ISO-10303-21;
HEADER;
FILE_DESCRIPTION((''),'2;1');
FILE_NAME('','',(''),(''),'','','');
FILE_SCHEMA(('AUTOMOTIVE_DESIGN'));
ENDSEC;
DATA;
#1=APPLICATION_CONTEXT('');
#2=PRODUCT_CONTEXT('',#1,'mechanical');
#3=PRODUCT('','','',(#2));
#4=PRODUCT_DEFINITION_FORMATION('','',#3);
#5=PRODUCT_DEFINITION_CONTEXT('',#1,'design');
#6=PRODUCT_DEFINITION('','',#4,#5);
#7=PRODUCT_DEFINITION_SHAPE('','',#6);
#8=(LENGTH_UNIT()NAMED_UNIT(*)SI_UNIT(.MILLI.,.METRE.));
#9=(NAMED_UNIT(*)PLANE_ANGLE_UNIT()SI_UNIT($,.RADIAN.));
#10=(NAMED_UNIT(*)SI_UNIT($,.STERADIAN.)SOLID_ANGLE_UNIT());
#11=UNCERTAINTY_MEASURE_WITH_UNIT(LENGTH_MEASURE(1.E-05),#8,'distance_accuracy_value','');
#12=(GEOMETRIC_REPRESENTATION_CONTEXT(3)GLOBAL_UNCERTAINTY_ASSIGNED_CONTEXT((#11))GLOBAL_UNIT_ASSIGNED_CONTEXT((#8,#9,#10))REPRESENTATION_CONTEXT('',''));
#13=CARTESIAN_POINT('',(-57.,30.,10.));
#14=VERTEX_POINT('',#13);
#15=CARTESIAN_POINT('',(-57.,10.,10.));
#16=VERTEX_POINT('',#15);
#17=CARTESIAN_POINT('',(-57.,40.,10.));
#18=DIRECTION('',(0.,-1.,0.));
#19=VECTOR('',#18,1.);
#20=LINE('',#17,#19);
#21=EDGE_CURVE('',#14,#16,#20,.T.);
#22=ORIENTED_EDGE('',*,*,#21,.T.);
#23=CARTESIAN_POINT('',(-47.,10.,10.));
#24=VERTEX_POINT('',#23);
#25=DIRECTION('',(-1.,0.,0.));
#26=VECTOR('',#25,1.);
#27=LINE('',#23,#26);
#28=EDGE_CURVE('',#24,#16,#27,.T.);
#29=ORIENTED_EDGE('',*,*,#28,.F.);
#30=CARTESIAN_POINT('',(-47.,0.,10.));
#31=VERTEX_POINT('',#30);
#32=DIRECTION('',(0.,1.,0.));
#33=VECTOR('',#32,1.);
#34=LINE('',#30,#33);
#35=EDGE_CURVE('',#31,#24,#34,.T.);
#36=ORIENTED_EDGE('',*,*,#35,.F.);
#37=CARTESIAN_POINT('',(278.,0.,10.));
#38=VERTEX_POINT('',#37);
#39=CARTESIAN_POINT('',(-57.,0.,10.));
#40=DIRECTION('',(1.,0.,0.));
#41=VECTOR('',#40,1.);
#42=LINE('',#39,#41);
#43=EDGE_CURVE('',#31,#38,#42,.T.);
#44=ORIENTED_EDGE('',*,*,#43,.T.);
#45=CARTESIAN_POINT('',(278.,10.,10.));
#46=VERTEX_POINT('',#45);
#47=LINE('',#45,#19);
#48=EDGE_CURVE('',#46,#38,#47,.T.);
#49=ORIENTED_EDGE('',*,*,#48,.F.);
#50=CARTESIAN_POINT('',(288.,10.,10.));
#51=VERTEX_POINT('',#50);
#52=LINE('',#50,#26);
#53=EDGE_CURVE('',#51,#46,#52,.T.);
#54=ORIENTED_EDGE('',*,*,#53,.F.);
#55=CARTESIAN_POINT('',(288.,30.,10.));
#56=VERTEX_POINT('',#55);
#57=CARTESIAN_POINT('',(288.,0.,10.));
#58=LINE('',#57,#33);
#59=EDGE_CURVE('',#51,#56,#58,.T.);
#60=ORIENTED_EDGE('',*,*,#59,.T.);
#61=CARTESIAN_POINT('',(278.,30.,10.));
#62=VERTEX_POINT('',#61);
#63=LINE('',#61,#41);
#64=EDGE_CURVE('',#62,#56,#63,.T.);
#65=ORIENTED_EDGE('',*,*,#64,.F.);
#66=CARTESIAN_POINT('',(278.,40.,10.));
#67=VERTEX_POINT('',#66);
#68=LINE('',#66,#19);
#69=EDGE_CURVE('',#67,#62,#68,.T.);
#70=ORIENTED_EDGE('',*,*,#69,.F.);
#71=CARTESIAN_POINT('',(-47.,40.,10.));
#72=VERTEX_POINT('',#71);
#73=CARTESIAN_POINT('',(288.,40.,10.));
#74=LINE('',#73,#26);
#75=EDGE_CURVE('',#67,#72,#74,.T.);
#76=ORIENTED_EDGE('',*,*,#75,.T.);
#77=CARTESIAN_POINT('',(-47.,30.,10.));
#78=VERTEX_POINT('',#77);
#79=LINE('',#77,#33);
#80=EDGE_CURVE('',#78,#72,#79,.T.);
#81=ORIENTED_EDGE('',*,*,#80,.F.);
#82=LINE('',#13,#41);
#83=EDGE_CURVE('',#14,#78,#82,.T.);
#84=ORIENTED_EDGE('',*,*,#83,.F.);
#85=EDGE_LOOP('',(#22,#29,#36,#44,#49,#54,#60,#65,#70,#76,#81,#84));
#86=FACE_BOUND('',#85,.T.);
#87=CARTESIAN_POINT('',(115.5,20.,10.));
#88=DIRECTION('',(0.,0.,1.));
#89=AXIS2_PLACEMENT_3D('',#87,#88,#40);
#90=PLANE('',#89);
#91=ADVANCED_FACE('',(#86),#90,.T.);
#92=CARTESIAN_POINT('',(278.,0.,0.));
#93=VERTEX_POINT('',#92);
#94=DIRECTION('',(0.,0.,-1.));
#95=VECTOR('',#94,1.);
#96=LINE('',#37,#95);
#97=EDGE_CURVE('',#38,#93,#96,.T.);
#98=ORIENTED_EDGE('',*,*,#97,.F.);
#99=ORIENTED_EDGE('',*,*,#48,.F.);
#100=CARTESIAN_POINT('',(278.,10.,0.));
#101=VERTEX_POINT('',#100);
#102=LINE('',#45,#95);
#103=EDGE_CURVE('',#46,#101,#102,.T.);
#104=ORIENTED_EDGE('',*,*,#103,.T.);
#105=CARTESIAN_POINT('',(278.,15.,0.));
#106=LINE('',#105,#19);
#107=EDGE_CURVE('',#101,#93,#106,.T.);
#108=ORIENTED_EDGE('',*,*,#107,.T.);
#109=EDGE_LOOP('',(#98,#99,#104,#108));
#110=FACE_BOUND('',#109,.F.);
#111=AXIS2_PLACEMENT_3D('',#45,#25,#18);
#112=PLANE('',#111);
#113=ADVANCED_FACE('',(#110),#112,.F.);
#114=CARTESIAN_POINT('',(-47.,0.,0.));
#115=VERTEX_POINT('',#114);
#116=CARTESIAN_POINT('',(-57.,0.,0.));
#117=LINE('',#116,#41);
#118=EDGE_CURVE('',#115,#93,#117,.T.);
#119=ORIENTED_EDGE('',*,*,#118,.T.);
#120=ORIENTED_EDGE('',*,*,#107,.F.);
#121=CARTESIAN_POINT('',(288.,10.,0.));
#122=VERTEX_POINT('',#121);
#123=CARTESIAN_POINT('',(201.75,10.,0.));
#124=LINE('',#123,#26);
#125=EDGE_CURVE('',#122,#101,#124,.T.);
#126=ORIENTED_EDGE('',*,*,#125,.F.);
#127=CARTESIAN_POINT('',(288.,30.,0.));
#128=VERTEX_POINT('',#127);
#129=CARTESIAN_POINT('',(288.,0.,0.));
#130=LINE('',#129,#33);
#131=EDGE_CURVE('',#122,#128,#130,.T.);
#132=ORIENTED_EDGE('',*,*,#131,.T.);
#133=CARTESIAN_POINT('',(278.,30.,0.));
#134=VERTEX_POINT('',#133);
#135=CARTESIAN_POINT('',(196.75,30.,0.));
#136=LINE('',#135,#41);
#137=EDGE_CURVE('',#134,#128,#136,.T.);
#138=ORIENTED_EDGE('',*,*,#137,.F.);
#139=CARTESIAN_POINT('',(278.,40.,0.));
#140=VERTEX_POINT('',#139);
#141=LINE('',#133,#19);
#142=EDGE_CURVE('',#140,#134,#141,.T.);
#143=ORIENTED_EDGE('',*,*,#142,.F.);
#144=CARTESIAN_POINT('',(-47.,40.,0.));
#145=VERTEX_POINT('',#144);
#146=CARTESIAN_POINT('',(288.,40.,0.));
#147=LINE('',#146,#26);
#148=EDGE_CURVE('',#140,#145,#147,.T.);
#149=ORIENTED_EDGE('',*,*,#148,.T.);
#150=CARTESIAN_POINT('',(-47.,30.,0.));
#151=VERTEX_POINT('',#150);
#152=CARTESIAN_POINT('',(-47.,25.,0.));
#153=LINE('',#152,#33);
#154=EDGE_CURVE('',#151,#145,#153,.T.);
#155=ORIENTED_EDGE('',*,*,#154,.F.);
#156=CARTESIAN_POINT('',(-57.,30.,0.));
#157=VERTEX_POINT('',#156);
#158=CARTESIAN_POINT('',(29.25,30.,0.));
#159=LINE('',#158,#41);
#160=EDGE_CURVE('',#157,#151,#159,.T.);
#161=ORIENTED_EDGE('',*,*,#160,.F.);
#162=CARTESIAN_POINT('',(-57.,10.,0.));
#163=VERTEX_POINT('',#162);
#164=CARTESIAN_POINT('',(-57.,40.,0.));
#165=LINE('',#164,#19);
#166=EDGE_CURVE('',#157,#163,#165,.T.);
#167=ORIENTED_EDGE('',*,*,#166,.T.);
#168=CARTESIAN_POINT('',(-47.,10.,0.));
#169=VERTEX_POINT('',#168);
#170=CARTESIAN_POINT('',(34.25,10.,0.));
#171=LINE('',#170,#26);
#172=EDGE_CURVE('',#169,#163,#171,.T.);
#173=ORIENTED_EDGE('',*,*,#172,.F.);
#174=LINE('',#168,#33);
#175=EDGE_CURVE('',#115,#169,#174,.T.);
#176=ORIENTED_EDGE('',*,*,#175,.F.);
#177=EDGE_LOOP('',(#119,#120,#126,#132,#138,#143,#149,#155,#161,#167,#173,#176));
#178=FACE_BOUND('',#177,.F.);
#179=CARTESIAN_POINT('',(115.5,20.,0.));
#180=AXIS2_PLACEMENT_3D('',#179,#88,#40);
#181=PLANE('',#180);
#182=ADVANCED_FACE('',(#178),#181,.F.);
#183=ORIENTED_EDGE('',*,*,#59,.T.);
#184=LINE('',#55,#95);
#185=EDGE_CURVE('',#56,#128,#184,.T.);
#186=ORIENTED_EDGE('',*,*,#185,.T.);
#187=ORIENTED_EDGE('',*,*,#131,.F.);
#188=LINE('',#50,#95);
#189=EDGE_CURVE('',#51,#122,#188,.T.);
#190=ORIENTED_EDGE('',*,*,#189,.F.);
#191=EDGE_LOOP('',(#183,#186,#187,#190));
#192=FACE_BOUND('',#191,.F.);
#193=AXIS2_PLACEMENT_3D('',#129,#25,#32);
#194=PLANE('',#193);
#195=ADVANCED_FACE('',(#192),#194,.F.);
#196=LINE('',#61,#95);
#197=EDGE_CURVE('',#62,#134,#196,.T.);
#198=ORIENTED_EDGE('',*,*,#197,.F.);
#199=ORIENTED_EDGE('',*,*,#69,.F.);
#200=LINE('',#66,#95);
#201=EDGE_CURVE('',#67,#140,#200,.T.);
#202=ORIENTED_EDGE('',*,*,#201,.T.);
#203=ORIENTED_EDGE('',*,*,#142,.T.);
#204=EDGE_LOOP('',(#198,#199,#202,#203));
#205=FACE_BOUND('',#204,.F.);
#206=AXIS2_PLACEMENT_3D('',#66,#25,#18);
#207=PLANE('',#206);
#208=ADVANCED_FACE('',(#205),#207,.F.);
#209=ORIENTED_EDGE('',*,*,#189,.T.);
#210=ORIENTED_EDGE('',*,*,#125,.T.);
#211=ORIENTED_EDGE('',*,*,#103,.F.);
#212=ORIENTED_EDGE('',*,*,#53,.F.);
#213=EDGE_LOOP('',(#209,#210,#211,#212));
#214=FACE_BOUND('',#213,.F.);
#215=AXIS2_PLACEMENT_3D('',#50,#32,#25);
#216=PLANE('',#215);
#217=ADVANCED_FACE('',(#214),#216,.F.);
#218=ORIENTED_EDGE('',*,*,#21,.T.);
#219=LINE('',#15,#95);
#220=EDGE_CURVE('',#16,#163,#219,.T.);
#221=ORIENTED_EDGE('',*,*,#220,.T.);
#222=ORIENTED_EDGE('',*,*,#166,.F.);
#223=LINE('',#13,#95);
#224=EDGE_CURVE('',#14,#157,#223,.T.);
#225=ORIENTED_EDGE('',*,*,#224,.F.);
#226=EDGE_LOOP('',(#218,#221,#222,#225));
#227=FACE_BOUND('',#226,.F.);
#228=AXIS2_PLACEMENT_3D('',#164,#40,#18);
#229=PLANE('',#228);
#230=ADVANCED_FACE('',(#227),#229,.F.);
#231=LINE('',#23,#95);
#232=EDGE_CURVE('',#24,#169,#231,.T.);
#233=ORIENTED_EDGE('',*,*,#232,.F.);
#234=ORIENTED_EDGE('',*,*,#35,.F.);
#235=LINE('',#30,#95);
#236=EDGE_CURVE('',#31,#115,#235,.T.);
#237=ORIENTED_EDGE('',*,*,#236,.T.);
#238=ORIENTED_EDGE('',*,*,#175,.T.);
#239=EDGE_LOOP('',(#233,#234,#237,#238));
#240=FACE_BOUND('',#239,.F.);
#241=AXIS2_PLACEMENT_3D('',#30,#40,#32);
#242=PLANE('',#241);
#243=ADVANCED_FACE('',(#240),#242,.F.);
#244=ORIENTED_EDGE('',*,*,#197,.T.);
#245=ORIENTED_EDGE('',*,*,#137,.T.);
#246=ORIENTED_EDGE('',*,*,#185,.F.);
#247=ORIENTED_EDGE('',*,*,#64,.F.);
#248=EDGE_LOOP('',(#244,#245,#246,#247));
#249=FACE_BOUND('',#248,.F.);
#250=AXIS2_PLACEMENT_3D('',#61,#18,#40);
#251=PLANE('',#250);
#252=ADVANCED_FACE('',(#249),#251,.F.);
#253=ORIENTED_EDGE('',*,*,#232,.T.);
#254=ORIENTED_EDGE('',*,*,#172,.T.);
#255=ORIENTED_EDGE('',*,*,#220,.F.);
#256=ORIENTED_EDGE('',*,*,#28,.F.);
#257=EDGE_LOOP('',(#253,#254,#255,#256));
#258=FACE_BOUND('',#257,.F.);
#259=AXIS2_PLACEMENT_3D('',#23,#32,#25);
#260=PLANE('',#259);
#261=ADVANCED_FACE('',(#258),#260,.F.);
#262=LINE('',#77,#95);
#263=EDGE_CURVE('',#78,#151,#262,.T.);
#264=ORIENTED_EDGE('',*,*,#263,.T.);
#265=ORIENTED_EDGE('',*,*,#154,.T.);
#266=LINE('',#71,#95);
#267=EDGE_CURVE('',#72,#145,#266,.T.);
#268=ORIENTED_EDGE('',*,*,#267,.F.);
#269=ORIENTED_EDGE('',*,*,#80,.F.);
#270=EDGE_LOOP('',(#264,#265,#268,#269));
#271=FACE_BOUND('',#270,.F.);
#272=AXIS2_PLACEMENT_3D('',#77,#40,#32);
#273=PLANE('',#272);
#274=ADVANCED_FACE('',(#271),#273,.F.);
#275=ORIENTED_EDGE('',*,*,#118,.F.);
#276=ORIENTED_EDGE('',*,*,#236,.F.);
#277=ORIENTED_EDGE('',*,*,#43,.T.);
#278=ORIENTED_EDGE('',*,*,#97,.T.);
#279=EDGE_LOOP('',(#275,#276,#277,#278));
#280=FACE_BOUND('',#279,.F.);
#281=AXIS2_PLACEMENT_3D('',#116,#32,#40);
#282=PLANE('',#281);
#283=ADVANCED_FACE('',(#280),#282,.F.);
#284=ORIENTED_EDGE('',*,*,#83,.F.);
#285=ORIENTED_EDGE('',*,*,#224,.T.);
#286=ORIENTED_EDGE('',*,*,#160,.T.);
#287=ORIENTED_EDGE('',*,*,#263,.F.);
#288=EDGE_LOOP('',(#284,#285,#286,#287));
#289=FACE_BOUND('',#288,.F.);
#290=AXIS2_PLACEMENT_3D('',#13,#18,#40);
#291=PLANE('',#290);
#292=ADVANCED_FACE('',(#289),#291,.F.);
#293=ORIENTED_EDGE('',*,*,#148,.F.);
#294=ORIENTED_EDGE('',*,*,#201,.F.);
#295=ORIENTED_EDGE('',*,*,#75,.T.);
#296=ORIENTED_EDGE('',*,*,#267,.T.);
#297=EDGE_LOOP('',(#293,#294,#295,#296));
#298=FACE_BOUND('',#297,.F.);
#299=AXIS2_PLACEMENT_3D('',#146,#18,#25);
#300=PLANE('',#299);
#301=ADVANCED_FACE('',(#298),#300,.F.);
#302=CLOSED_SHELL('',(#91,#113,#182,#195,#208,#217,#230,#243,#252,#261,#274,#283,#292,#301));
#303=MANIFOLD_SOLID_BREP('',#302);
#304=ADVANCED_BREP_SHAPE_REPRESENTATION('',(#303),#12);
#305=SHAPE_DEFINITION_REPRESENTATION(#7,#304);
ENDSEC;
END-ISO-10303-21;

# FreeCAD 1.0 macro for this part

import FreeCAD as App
import Part
import Sketcher

V = App.Vector
Q = App.Units.Quantity

doc = App.newDocument("Part")
body = doc.addObject("PartDesign::Body", "Body")

# Sketch on XY plane
sketch1 = doc.addObject("Sketcher::SketchObject", "Sketch")
body.addObject(sketch1)
sketch1.AttachmentSupport = (doc.XY_Plane, [""])
sketch1.MapMode = "FlatFace"
sketch1.addGeometry(Part.LineSegment(V(-57, 40, 0), V(-57, 0, 0)), False)
sketch1.addGeometry(Part.LineSegment(V(-57, 0, 0), V(288, 0, 0)), False)
sketch1.addGeometry(Part.LineSegment(V(288, 0, 0), V(288, 40, 0)), False)
sketch1.addGeometry(Part.LineSegment(V(288, 40, 0), V(-57, 40, 0)), False)
sketch1.addConstraint(Sketcher.Constraint("Coincident", 0, 2, 1, 1))
sketch1.addConstraint(Sketcher.Constraint("Coincident", 1, 2, 2, 1))
sketch1.addConstraint(Sketcher.Constraint("Coincident", 2, 2, 3, 1))
sketch1.addConstraint(Sketcher.Constraint("Coincident", 3, 2, 0, 1))
sketch1.addConstraint(Sketcher.Constraint("Vertical", 0))
sketch1.addConstraint(Sketcher.Constraint("Horizontal", 1))
sketch1.addConstraint(Sketcher.Constraint("Vertical", 2))
sketch1.addConstraint(Sketcher.Constraint("Horizontal", 3))
sketch1.addConstraint(Sketcher.Constraint("PointOnObject", 0, 2, -1))
sketch1.addConstraint(Sketcher.Constraint("DistanceX", 1, 1, 1, 2, Q("345 mm")))
sketch1.addConstraint(Sketcher.Constraint("DistanceY", 0, 2, 0, 1, Q("40 mm")))
sketch1.addConstraint(Sketcher.Constraint("DistanceX", 0, 2, -1, 1, Q("57 mm")))
pad1 = doc.addObject("PartDesign::Pad", "Pad")
body.addObject(pad1)
pad1.Profile = sketch1
pad1.Length = 10

# Sketch on XY plane
sketch2 = doc.addObject("Sketcher::SketchObject", "Sketch001")
body.addObject(sketch2)
sketch2.AttachmentSupport = (doc.XY_Plane, [""])
sketch2.MapMode = "FlatFace"
sketch2.AttachmentOffset = App.Placement(V(0, 0, 10), App.Rotation())
sketch2.addGeometry(Part.LineSegment(V(-47, 40, 0), V(-57, 40, 0)), False)
sketch2.addGeometry(Part.LineSegment(V(-57, 40, 0), V(-57, 30, 0)), False)
sketch2.addGeometry(Part.LineSegment(V(-57, 30, 0), V(-47, 30, 0)), False)
sketch2.addGeometry(Part.LineSegment(V(-47, 30, 0), V(-47, 40, 0)), False)
sketch2.addGeometry(Part.LineSegment(V(-57, 10, 0), V(-57, 0, 0)), False)
sketch2.addGeometry(Part.LineSegment(V(-57, 0, 0), V(-47, 0, 0)), False)
sketch2.addGeometry(Part.LineSegment(V(-47, 0, 0), V(-47, 10, 0)), False)
sketch2.addGeometry(Part.LineSegment(V(-47, 10, 0), V(-57, 10, 0)), False)
sketch2.addGeometry(Part.LineSegment(V(288, 30, 0), V(288, 40, 0)), False)
sketch2.addGeometry(Part.LineSegment(V(288, 40, 0), V(278, 40, 0)), False)
sketch2.addGeometry(Part.LineSegment(V(278, 40, 0), V(278, 30, 0)), False)
sketch2.addGeometry(Part.LineSegment(V(278, 30, 0), V(288, 30, 0)), False)
sketch2.addGeometry(Part.LineSegment(V(278, 0, 0), V(288, 0, 0)), False)
sketch2.addGeometry(Part.LineSegment(V(288, 0, 0), V(288, 10, 0)), False)
sketch2.addGeometry(Part.LineSegment(V(288, 10, 0), V(278, 10, 0)), False)
sketch2.addGeometry(Part.LineSegment(V(278, 10, 0), V(278, 0, 0)), False)
sketch2.addConstraint(Sketcher.Constraint("Coincident", 0, 2, 1, 1))
sketch2.addConstraint(Sketcher.Constraint("Coincident", 1, 2, 2, 1))
sketch2.addConstraint(Sketcher.Constraint("Coincident", 2, 2, 3, 1))
sketch2.addConstraint(Sketcher.Constraint("Coincident", 3, 2, 0, 1))
sketch2.addConstraint(Sketcher.Constraint("Coincident", 4, 2, 5, 1))
sketch2.addConstraint(Sketcher.Constraint("Coincident", 5, 2, 6, 1))
sketch2.addConstraint(Sketcher.Constraint("Coincident", 6, 2, 7, 1))
sketch2.addConstraint(Sketcher.Constraint("Coincident", 7, 2, 4, 1))
sketch2.addConstraint(Sketcher.Constraint("Coincident", 8, 2, 9, 1))
sketch2.addConstraint(Sketcher.Constraint("Coincident", 9, 2, 10, 1))
sketch2.addConstraint(Sketcher.Constraint("Coincident", 10, 2, 11, 1))
sketch2.addConstraint(Sketcher.Constraint("Coincident", 11, 2, 8, 1))
sketch2.addConstraint(Sketcher.Constraint("Coincident", 12, 2, 13, 1))
sketch2.addConstraint(Sketcher.Constraint("Coincident", 13, 2, 14, 1))
sketch2.addConstraint(Sketcher.Constraint("Coincident", 14, 2, 15, 1))
sketch2.addConstraint(Sketcher.Constraint("Coincident", 15, 2, 12, 1))
sketch2.addConstraint(Sketcher.Constraint("Horizontal", 0))
sketch2.addConstraint(Sketcher.Constraint("Vertical", 1))
sketch2.addConstraint(Sketcher.Constraint("Horizontal", 2))
sketch2.addConstraint(Sketcher.Constraint("Vertical", 3))
sketch2.addConstraint(Sketcher.Constraint("Vertical", 4))
sketch2.addConstraint(Sketcher.Constraint("Horizontal", 5))
sketch2.addConstraint(Sketcher.Constraint("Vertical", 6))
sketch2.addConstraint(Sketcher.Constraint("Horizontal", 7))
sketch2.addConstraint(Sketcher.Constraint("Vertical", 8))
sketch2.addConstraint(Sketcher.Constraint("Horizontal", 9))
sketch2.addConstraint(Sketcher.Constraint("Vertical", 10))
sketch2.addConstraint(Sketcher.Constraint("Horizontal", 11))
sketch2.addConstraint(Sketcher.Constraint("Horizontal", 12))
sketch2.addConstraint(Sketcher.Constraint("Vertical", 13))
sketch2.addConstraint(Sketcher.Constraint("Horizontal", 14))
sketch2.addConstraint(Sketcher.Constraint("Vertical", 15))
sketch2.addConstraint(Sketcher.Constraint("PointOnObject", 4, 2, -1))
sketch2.addConstraint(Sketcher.Constraint("PointOnObject", 12, 2, -1))
sketch2.addConstraint(Sketcher.Constraint("Horizontal", 3, 2, 8, 2))
sketch2.addConstraint(Sketcher.Constraint("Horizontal", 2, 2, 10, 2))
sketch2.addConstraint(Sketcher.Constraint("Horizontal", 7, 2, 13, 2))
sketch2.addConstraint(Sketcher.Constraint("Vertical", 1, 2, 4, 2))
sketch2.addConstraint(Sketcher.Constraint("Vertical", 3, 2, 5, 2))
sketch2.addConstraint(Sketcher.Constraint("Vertical", 11, 2, 12, 2))
sketch2.addConstraint(Sketcher.Constraint("Vertical", 10, 2, 14, 2))
sketch2.addConstraint(Sketcher.Constraint("Equal", 7, 9))
sketch2.addConstraint(Sketcher.Constraint("Equal", 14, 1))
sketch2.addConstraint(Sketcher.Constraint("Equal", 3, 4))
sketch2.addConstraint(Sketcher.Constraint("DistanceX", 0, 2, 0, 1, Q("10 mm")))
sketch2.addConstraint(Sketcher.Constraint("DistanceX", 0, 2, -1, 1, Q("57 mm")))
sketch2.addConstraint(Sketcher.Constraint("DistanceY", -1, 1, 0, 2, Q("40 mm")))
sketch2.addConstraint(Sketcher.Constraint("DistanceX", -1, 1, 8, 2, Q("288 mm")))
pocket1 = doc.addObject("PartDesign::Pocket", "Pocket")
body.addObject(pocket1)
pocket1.Profile = sketch2
pocket1.Length = 85.725

doc.recompute()
